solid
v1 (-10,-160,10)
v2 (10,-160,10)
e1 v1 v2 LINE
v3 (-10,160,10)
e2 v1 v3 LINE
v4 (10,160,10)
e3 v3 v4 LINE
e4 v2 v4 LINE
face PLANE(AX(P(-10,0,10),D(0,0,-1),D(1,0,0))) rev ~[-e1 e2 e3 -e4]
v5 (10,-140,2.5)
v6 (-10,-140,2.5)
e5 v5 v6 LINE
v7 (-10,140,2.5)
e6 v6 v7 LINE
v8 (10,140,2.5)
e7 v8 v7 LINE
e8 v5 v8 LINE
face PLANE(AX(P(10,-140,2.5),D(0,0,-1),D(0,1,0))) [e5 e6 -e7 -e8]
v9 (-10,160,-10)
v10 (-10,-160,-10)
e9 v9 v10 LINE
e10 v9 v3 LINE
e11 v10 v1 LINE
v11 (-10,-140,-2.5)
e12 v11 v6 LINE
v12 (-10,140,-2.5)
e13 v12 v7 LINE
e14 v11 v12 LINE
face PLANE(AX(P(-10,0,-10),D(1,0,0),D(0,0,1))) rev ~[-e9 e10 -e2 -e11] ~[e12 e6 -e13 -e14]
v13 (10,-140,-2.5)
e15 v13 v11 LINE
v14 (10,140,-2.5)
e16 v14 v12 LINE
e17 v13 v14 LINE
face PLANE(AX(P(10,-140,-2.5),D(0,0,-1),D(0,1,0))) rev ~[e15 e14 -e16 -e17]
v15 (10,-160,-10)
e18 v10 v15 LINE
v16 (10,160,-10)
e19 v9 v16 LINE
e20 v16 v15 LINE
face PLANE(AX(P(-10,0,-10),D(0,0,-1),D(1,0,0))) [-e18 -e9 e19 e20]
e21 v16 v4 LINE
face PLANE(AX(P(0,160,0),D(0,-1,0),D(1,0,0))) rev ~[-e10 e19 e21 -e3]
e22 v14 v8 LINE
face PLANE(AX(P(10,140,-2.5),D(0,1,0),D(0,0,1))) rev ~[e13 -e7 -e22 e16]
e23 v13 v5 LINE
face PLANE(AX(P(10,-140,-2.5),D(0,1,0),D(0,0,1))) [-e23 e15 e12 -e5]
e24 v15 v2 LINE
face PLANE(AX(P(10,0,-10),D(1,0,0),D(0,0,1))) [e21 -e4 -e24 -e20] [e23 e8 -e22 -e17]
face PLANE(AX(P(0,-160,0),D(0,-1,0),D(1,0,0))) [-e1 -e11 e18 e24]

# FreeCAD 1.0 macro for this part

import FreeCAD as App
import Part
import Sketcher
Q = App.Units.Quantity

doc = App.newDocument("Part")
body = doc.addObject("PartDesign::Body", "Body")

# Sketch on XZ plane
sketch1 = body.newObject("Sketcher::SketchObject", "Sketch")
sketch1.AttachmentSupport = (doc.getObject("XZ_Plane"), [""])
sketch1.MapMode = "FlatFace"
sketch1.addGeometry(Part.LineSegment(App.Vector(-10, 10, 0), App.Vector(-10, -10, 0)), False)
sketch1.addGeometry(Part.LineSegment(App.Vector(-10, -10, 0), App.Vector(10, -10, 0)), False)
sketch1.addGeometry(Part.LineSegment(App.Vector(10, -10, 0), App.Vector(10, 10, 0)), False)
sketch1.addGeometry(Part.LineSegment(App.Vector(10, 10, 0), App.Vector(-10, 10, 0)), False)
sketch1.addConstraint(Sketcher.Constraint("Coincident", 0, 2, 1, 1))
sketch1.addConstraint(Sketcher.Constraint("Coincident", 1, 2, 2, 1))
sketch1.addConstraint(Sketcher.Constraint("Coincident", 2, 2, 3, 1))
sketch1.addConstraint(Sketcher.Constraint("Coincident", 3, 2, 0, 1))
sketch1.addConstraint(Sketcher.Constraint("Vertical", 0))
sketch1.addConstraint(Sketcher.Constraint("Horizontal", 1))
sketch1.addConstraint(Sketcher.Constraint("Vertical", 2))
sketch1.addConstraint(Sketcher.Constraint("Horizontal", 3))
sketch1.addConstraint(Sketcher.Constraint("Symmetric", 0, 2, 2, 2, -1, 1))
sketch1.addConstraint(Sketcher.Constraint("Equal", 3, 0))
sketch1.addConstraint(Sketcher.Constraint("DistanceX", 1, 1, 1, 2, Q("20 mm")))
pad1 = body.newObject("PartDesign::Pad", "Pad")
pad1.Profile = sketch1
pad1.Length = 320
pad1.Midplane = True

# Sketch on YZ plane
sketch2 = body.newObject("Sketcher::SketchObject", "Sketch001")
sketch2.AttachmentSupport = (doc.getObject("YZ_Plane"), [""])
sketch2.MapMode = "FlatFace"
sketch2.AttachmentOffset = App.Placement(App.Vector(0, 0, 10), App.Rotation())
sketch2.addGeometry(Part.LineSegment(App.Vector(-140, 2, 0), App.Vector(-140, -2, 0)), False)
sketch2.addGeometry(Part.LineSegment(App.Vector(-140, -2, 0), App.Vector(140, -2, 0)), False)
sketch2.addGeometry(Part.LineSegment(App.Vector(140, -2, 0), App.Vector(140, 2, 0)), False)
sketch2.addGeometry(Part.LineSegment(App.Vector(140, 2, 0), App.Vector(-140, 2, 0)), False)
sketch2.addConstraint(Sketcher.Constraint("Coincident", 0, 2, 1, 1))
sketch2.addConstraint(Sketcher.Constraint("Coincident", 1, 2, 2, 1))
sketch2.addConstraint(Sketcher.Constraint("Coincident", 2, 2, 3, 1))
sketch2.addConstraint(Sketcher.Constraint("Coincident", 3, 2, 0, 1))
sketch2.addConstraint(Sketcher.Constraint("Vertical", 0))
sketch2.addConstraint(Sketcher.Constraint("Horizontal", 1))
sketch2.addConstraint(Sketcher.Constraint("Vertical", 2))
sketch2.addConstraint(Sketcher.Constraint("Horizontal", 3))
sketch2.addConstraint(Sketcher.Constraint("Symmetric", 0, 2, 2, 2, -1, 1))
sketch2.addConstraint(Sketcher.Constraint("DistanceX", 1, 1, 1, 2, Q("280 mm")))
sketch2.addConstraint(Sketcher.Constraint("DistanceY", 0, 2, 0, 1, Q("5 mm")))
pocket1 = body.newObject("PartDesign::Pocket", "Pocket")
pocket1.Profile = sketch2
pocket1.Length = 25

doc.recompute()
